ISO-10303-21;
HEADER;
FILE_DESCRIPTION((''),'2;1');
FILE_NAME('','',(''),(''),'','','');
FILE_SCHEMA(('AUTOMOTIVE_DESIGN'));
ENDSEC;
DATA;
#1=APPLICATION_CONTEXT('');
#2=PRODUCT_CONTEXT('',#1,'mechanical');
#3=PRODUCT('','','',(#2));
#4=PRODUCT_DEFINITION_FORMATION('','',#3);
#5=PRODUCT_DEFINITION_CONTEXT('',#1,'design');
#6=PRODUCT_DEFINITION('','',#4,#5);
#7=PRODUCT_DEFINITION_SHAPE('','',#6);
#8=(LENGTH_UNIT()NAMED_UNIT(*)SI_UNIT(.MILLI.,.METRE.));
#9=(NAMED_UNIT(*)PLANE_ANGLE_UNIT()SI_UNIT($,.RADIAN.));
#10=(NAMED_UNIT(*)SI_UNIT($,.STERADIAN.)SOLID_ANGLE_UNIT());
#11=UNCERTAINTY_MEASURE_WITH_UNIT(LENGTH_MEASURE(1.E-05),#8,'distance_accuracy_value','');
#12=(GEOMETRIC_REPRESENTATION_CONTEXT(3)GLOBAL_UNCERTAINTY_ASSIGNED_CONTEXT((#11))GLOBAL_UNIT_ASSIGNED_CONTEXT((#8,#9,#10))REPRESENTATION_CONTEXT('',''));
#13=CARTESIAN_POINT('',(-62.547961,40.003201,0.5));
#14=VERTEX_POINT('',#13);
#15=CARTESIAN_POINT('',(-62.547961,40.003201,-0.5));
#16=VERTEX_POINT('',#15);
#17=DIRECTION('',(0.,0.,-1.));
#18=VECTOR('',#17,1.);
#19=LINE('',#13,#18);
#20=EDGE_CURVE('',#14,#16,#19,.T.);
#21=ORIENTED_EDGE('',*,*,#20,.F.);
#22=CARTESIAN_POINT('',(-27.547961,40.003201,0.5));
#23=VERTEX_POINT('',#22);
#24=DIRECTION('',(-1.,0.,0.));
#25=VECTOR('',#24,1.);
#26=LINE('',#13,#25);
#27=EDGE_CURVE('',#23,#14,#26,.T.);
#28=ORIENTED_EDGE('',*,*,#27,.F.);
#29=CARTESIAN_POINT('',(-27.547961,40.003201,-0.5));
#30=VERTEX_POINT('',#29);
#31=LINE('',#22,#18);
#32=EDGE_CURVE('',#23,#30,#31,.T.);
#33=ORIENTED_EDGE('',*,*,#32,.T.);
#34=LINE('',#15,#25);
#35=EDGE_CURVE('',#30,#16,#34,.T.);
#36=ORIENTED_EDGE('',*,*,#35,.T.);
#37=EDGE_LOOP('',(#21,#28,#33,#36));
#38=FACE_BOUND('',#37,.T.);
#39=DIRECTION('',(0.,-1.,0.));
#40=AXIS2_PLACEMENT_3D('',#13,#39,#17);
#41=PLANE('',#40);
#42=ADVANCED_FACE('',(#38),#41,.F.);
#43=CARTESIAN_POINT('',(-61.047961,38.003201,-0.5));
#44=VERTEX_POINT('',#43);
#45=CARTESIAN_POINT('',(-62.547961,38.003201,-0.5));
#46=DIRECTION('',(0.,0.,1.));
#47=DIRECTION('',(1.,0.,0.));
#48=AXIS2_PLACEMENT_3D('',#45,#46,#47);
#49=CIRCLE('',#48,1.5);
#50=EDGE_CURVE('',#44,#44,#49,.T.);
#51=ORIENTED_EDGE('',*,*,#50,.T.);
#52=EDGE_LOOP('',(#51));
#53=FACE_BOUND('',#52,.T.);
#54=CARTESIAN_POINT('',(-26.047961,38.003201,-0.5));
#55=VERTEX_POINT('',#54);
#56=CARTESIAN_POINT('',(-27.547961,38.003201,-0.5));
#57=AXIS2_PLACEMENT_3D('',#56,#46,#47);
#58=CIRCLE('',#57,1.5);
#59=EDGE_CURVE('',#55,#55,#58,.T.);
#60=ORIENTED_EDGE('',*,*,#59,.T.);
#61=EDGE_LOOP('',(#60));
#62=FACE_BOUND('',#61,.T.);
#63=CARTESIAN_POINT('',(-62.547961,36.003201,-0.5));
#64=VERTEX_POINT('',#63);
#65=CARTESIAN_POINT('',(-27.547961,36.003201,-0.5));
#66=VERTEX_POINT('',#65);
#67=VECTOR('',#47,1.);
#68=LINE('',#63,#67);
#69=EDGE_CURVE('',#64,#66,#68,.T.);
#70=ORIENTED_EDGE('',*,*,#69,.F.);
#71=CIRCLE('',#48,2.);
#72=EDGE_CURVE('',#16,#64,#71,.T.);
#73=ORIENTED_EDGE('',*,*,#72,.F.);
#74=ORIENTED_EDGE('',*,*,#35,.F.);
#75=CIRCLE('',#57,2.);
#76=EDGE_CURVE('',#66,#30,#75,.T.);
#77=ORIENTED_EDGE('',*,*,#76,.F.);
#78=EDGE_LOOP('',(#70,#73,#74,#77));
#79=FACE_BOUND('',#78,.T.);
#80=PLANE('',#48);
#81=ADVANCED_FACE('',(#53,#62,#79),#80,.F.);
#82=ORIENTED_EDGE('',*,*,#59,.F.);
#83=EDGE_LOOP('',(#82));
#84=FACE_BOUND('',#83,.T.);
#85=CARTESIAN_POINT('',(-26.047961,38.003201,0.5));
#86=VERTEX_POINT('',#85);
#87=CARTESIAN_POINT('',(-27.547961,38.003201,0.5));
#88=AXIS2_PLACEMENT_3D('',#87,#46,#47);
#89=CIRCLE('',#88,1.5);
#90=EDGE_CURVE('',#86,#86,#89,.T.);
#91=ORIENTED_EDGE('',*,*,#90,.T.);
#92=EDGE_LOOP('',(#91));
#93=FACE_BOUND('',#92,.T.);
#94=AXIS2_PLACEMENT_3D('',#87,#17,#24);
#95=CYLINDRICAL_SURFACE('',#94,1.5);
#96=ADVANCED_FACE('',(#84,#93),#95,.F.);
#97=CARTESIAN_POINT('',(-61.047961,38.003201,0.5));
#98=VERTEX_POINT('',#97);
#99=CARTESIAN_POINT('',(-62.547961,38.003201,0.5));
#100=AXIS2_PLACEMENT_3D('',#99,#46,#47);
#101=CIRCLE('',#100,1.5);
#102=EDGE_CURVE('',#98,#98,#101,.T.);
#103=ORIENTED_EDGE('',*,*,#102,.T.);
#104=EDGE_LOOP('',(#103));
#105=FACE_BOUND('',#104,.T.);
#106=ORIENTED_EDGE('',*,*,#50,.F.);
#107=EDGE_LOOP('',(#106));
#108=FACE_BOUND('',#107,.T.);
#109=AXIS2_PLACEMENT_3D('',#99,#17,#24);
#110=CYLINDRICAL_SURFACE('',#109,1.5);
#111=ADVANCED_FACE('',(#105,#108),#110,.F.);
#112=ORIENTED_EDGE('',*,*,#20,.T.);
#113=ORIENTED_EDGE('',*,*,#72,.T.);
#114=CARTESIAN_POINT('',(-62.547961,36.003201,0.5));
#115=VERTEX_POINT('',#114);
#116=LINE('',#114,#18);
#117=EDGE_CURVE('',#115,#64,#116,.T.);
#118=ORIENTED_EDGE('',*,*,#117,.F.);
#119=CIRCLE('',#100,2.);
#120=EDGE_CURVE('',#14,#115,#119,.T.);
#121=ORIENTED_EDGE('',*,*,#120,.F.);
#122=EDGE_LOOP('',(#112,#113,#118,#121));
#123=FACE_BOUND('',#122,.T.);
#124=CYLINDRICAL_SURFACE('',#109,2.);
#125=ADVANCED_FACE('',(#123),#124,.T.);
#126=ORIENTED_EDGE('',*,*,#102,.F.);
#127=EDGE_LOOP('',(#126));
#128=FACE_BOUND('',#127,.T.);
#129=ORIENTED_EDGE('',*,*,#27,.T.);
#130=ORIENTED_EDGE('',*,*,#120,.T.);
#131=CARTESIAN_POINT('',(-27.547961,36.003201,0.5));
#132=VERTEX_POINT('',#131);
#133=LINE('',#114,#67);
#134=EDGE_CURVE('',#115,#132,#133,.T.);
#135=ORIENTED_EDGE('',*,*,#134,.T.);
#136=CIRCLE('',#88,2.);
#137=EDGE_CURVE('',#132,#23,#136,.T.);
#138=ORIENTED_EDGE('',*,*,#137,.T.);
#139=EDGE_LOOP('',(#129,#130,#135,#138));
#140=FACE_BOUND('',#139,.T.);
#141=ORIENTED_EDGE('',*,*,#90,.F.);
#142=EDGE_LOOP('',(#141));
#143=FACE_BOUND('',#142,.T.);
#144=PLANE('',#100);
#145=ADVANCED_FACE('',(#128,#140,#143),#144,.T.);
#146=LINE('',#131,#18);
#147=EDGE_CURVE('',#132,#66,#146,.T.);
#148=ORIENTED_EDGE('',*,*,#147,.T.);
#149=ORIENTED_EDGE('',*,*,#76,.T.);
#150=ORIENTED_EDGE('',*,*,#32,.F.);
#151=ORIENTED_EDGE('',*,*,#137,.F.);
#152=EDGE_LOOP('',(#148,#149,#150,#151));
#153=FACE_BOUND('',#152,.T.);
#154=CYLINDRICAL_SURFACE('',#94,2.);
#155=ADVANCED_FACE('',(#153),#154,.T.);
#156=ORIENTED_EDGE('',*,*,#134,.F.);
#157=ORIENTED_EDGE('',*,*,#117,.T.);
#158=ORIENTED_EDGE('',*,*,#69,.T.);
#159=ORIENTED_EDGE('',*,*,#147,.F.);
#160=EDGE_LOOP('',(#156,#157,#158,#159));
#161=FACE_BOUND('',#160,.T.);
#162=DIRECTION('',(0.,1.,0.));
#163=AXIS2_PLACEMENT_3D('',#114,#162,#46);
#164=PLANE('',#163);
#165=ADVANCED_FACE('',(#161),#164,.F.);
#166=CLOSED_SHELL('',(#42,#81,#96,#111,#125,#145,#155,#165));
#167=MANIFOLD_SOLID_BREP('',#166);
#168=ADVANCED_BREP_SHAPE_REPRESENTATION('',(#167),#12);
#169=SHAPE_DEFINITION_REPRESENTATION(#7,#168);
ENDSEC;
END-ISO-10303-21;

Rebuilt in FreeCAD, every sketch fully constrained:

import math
import FreeCAD as App
import Part
import Sketcher

V = App.Vector

doc = App.newDocument("Part")
params = doc.addObject("Spreadsheet::Sheet", "Params")
for row, (alias, value) in enumerate([
    ("sketch1_diameter", "3 mm"),
    ("sketch1_radius", "2 mm"),
    ("sketch1_width", "35 mm"),
    ("pad1_length", "1 mm"),
], start=1):
    params.set(f"A{row}", alias)
    params.set(f"B{row}", "=" + value)
    params.setAlias(f"B{row}", alias)

body = doc.addObject("PartDesign::Body", "Body")

sketch1 = body.newObject("Sketcher::SketchObject", "Sketch")
sketch1.AttachmentSupport = (doc.getObject("XY_Plane"), [""])
sketch1.MapMode = "FlatFace"
sketch1.addGeometry([
    Part.LineSegment(V(-27.547961, 40.003201, 0), V(-62.547961, 40.003201, 0)),
    Part.ArcOfCircle(Part.Circle(V(-62.547961, 38.003201, 0), V(0, 0, 1), 2), math.radians(90), math.radians(270)),
    Part.LineSegment(V(-62.547961, 36.003201, 0), V(-27.547961, 36.003201, 0)),
    Part.ArcOfCircle(Part.Circle(V(-27.547961, 38.003201, 0), V(0, 0, 1), 2), math.radians(-90), math.radians(90)),
    Part.Circle(V(-27.547961, 38.003201, 0), V(0, 0, 1), 1.5),
    Part.Circle(V(-62.547961, 38.003201, 0), V(0, 0, 1), 1.5),
], False)
sketch1.addConstraint([
    Sketcher.Constraint("Tangent", 0, 2, 1, 1),
    Sketcher.Constraint("Tangent", 1, 2, 2, 1),
    Sketcher.Constraint("Tangent", 2, 2, 3, 1),
    Sketcher.Constraint("Tangent", 3, 2, 0, 1),
    Sketcher.Constraint("Horizontal", 0),
    Sketcher.Constraint("Horizontal", 2),
    Sketcher.Constraint("Coincident", 4, 3, 3, 3),
    Sketcher.Constraint("Coincident", 5, 3, 1, 3),
    Sketcher.Constraint("Equal", 4, 5),
    Sketcher.Constraint("Diameter", 4, 3.0),
    Sketcher.Constraint("Radius", 1, 2.0),
    Sketcher.Constraint("DistanceX", 0, 2, 0, 1, 35.0),
    Sketcher.Constraint("DistanceY", -1, 1, 1, 3, 38.003201),
    Sketcher.Constraint("DistanceX", 1, 3, -1, 1, 62.547961),
])
sketch1.setExpression("Constraints[9]", "Params.sketch1_diameter")
sketch1.setExpression("Constraints[10]", "Params.sketch1_radius")
sketch1.setExpression("Constraints[11]", "Params.sketch1_width")
pad1 = body.newObject("PartDesign::Pad", "Pad")
pad1.Profile = sketch1
pad1.setExpression("Length", "Params.pad1_length")
pad1.Midplane = True

doc.recompute()
